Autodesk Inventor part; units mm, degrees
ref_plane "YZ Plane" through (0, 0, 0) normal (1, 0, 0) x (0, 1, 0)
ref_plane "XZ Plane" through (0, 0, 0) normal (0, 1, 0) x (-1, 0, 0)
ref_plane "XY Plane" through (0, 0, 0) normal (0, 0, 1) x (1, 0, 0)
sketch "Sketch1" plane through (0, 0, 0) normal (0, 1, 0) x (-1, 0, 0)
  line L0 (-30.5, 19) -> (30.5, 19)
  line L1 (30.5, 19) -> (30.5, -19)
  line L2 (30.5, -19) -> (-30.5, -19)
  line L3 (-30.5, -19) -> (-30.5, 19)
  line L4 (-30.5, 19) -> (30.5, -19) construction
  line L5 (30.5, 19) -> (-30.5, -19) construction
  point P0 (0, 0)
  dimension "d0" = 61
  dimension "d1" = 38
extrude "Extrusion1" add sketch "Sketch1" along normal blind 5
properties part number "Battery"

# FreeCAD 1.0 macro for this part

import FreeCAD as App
import Part
import Sketcher
from FreeCAD import Vector


def add_polygon(sketch, points):
    """Adds a closed chain of lines whose ends are joined by coincident constraints."""
    first, n = sketch.GeometryCount, len(points)
    for a, b in zip(points, points[1:] + points[:1]):
        sketch.addGeometry(Part.LineSegment(App.Vector(*a, 0), App.Vector(*b, 0)), False)
    for i in range(n):
        sketch.addConstraint(Sketcher.Constraint("Coincident", first + i, 2, first + (i + 1) % n, 1))

doc = App.newDocument("Part")
body = doc.addObject("PartDesign::Body", "Body")

sketch1 = doc.addObject("Sketcher::SketchObject", "Sketch")
body.addObject(sketch1)
sketch1.AttachmentSupport = (doc.XZ_Plane, [""])
sketch1.MapMode = "FlatFace"
add_polygon(sketch1, [(-30, 19), (30, 19), (30, -19), (-30, -19)])
sketch1.addConstraint(Sketcher.Constraint("Horizontal", 0))
sketch1.addConstraint(Sketcher.Constraint("Vertical", 1))
sketch1.addConstraint(Sketcher.Constraint("Horizontal", 2))
sketch1.addConstraint(Sketcher.Constraint("Vertical", 3))
sketch1.addConstraint(Sketcher.Constraint("Symmetric", 0, 2, 2, 2, -1, 1))
sketch1.addConstraint(Sketcher.Constraint("DistanceX", 0, 1, 0, 2, 61.0))
sketch1.addConstraint(Sketcher.Constraint("DistanceY", 1, 2, 1, 1, 38.0))
pad1 = doc.addObject("PartDesign::Pad", "Pad")
body.addObject(pad1)
pad1.Profile = sketch1
pad1.Length = 5
pad1.Reversed = True

doc.recompute()
